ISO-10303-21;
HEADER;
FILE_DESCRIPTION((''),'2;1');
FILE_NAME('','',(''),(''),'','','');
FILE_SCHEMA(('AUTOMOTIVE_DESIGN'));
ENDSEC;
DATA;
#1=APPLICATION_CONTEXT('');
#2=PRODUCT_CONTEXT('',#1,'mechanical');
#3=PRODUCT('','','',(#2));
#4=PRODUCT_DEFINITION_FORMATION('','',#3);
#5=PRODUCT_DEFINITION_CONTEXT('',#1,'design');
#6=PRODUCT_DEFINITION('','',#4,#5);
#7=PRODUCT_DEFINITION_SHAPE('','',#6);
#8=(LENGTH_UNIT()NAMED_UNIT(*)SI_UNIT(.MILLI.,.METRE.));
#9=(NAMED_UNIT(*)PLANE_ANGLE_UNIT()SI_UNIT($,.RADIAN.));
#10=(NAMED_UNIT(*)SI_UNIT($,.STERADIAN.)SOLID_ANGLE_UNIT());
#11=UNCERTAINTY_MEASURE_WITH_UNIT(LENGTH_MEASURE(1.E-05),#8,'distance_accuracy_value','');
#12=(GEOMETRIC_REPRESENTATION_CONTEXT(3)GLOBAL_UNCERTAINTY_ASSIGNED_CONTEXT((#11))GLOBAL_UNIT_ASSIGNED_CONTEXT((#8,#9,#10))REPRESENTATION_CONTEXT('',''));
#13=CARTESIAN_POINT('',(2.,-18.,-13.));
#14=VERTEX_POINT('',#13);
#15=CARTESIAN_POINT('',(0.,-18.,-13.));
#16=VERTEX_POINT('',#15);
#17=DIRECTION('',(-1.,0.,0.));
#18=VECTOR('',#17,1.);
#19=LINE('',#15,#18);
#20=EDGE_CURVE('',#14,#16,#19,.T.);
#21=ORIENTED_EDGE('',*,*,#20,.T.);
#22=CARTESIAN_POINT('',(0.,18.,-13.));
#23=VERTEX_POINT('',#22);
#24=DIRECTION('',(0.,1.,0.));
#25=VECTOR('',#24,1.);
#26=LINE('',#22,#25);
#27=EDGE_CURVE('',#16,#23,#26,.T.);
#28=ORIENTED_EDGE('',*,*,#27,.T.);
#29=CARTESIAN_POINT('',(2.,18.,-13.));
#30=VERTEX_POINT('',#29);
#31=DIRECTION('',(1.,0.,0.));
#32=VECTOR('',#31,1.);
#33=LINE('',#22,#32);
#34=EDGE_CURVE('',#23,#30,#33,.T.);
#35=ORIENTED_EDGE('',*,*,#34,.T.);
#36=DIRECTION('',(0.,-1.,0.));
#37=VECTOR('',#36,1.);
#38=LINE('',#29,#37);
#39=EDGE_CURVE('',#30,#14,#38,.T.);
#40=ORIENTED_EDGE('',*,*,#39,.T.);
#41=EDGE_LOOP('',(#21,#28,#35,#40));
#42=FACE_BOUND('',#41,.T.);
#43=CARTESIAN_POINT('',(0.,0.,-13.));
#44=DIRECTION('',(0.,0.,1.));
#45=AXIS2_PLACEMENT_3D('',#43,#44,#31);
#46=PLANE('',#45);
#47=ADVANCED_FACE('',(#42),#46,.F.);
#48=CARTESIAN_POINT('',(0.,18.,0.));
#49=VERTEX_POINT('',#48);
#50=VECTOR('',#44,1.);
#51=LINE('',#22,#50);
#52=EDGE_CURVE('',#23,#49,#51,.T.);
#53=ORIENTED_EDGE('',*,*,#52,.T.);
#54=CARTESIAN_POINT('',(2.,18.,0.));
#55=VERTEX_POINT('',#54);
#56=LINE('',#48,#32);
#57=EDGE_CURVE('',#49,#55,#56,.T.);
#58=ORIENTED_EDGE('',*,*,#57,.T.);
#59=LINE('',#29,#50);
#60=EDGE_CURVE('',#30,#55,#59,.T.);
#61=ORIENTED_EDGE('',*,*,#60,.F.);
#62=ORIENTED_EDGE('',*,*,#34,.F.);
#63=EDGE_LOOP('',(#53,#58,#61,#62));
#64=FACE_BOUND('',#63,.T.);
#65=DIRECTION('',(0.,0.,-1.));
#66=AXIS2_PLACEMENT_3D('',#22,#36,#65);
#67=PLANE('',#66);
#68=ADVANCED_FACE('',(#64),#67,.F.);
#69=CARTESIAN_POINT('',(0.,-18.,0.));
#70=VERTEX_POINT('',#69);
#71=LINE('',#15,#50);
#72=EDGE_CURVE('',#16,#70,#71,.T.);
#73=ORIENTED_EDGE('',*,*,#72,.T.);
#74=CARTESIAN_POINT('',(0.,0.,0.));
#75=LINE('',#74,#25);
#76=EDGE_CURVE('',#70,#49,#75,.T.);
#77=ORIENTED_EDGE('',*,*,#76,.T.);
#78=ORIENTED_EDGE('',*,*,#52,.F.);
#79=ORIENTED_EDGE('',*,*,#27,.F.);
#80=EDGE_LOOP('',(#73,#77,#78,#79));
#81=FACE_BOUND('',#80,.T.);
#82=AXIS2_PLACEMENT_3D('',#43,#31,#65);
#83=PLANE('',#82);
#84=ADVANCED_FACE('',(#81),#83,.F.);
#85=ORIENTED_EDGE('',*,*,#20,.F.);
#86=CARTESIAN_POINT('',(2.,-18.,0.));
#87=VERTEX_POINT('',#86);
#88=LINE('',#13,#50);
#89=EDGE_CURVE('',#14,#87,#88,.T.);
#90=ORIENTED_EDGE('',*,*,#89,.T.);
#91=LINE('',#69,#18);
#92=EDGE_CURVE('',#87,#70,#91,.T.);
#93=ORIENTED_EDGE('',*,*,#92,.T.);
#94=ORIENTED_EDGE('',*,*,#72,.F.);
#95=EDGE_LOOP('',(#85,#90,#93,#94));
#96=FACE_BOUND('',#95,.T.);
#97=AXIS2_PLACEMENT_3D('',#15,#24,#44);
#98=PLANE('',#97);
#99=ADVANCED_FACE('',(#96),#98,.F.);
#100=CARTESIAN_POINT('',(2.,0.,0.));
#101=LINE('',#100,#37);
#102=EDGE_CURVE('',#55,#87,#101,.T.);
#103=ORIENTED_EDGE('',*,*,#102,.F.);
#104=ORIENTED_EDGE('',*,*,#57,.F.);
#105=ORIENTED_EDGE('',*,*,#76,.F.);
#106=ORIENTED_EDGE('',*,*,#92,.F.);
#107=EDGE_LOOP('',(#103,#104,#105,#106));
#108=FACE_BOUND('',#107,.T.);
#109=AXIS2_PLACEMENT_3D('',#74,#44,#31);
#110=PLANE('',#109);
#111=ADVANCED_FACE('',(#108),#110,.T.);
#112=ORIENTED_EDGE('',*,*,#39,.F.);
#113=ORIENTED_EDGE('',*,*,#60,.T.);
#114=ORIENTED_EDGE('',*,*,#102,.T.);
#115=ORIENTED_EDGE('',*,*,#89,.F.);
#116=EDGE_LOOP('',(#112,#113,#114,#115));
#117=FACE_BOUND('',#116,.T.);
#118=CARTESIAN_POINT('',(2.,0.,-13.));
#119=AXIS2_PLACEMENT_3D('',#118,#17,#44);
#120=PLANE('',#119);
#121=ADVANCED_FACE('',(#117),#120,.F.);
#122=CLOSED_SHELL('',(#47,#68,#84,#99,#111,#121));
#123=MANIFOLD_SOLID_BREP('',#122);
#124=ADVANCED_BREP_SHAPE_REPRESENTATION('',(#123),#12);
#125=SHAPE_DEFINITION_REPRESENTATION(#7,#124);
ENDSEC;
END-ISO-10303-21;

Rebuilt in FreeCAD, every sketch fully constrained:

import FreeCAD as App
import Part
import Sketcher
from FreeCAD import Vector


def add_polygon(sketch, points):
    """Adds a closed chain of lines whose ends are joined by coincident constraints."""
    first, n = sketch.GeometryCount, len(points)
    for a, b in zip(points, points[1:] + points[:1]):
        sketch.addGeometry(Part.LineSegment(App.Vector(*a, 0), App.Vector(*b, 0)), False)
    for i in range(n):
        sketch.addConstraint(Sketcher.Constraint("Coincident", first + i, 2, first + (i + 1) % n, 1))

doc = App.newDocument("Part")
body = doc.addObject("PartDesign::Body", "Body")

sketch1 = doc.addObject("Sketcher::SketchObject", "Sketch")
body.addObject(sketch1)
sketch1.AttachmentSupport = (doc.XY_Plane, [""])
sketch1.MapMode = "FlatFace"
add_polygon(sketch1, [(0, 18), (2, 18), (2, -18), (0, -18)])
sketch1.addConstraint(Sketcher.Constraint("Horizontal", 0))
sketch1.addConstraint(Sketcher.Constraint("Vertical", 1))
sketch1.addConstraint(Sketcher.Constraint("Horizontal", 2))
sketch1.addConstraint(Sketcher.Constraint("Vertical", 3))
sketch1.addConstraint(Sketcher.Constraint("Symmetric", 2, 2, 3, 2, -1, 1))
sketch1.addConstraint(Sketcher.Constraint("DistanceX", 0, 1, 0, 2, 2.0))
sketch1.addConstraint(Sketcher.Constraint("DistanceY", 1, 2, 1, 1, 36.0))
pad1 = doc.addObject("PartDesign::Pad", "Pad")
body.addObject(pad1)
pad1.Profile = sketch1
pad1.Length = 13
pad1.Reversed = True

doc.recompute()
